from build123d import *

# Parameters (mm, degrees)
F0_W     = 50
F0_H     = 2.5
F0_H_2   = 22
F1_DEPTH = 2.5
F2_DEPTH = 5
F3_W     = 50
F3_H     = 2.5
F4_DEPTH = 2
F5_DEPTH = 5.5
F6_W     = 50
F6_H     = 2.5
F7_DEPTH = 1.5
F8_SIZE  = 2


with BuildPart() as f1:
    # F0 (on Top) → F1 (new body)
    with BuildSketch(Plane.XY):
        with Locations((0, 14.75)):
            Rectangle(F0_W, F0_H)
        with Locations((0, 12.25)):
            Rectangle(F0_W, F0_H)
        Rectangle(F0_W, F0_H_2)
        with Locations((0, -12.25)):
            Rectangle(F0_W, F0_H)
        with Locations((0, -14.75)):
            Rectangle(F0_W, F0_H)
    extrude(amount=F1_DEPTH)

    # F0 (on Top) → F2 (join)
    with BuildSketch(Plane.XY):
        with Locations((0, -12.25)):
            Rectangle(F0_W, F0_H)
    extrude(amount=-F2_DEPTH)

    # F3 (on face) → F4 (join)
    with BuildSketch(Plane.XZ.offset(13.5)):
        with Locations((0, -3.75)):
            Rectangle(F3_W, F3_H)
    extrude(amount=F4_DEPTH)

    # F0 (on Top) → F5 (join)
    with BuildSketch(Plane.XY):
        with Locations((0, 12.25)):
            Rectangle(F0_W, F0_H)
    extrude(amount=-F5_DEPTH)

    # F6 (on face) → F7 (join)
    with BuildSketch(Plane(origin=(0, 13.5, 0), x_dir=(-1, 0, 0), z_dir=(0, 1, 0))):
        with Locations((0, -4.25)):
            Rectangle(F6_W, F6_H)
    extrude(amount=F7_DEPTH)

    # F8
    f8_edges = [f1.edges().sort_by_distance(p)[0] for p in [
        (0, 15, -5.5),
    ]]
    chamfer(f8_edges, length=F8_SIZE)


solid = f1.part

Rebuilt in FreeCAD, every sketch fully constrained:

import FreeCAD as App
import Part
import Sketcher

V = App.Vector
Q = App.Units.Quantity


def edges_at(feature, points):
    """Names of the edges that pass closest to the given points."""
    edges = feature.Shape.Edges
    near = lambda p: min(range(len(edges)), key=lambda i: edges[i].distToShape(Part.Vertex(*p))[0])
    return sorted({f"Edge{near(p) + 1}" for p in points})


def add_polygon(sketch, points):
    """Adds a closed chain of lines whose ends are joined by coincident constraints."""
    first, n = sketch.GeometryCount, len(points)
    for a, b in zip(points, points[1:] + points[:1]):
        sketch.addGeometry(Part.LineSegment(App.Vector(*a, 0), App.Vector(*b, 0)), False)
    for i in range(n):
        sketch.addConstraint(Sketcher.Constraint("Coincident", first + i, 2, first + (i + 1) % n, 1))

doc = App.newDocument("Part")
body = doc.addObject("PartDesign::Body", "Body")

# Sketch on XY plane
sketch1 = body.newObject("Sketcher::SketchObject", "Sketch")
sketch1.AttachmentSupport = (doc.getObject("XY_Plane"), [""])
sketch1.MapMode = "FlatFace"
add_polygon(sketch1, [(-25, 16), (-25, -16), (25, -16), (25, 16)])  # lines 0-3
sketch1.addConstraint([
    Sketcher.Constraint("Vertical", 0),
    Sketcher.Constraint("Horizontal", 1),
    Sketcher.Constraint("Vertical", 2),
    Sketcher.Constraint("Horizontal", 3),
    Sketcher.Constraint("Symmetric", 0, 2, 2, 2, -1, 1),
    Sketcher.Constraint("DistanceX", 1, 1, 1, 2, Q("50 mm")),
    Sketcher.Constraint("DistanceY", 0, 2, 0, 1, Q("32 mm")),
])
pad1 = body.newObject("PartDesign::Pad", "Pad")
pad1.Profile = sketch1
pad1.Length = 2.5

# Sketch on XY plane
sketch2 = body.newObject("Sketcher::SketchObject", "Sketch001")
sketch2.AttachmentSupport = (doc.getObject("XY_Plane"), [""])
sketch2.MapMode = "FlatFace"
add_polygon(sketch2, [(-25, -11), (-25, -13.5), (25, -13.5), (25, -11)])  # lines 0-3
sketch2.addConstraint([
    Sketcher.Constraint("Vertical", 0),
    Sketcher.Constraint("Horizontal", 1),
    Sketcher.Constraint("Vertical", 2),
    Sketcher.Constraint("Horizontal", 3),
    Sketcher.Constraint("DistanceX", 1, 1, 1, 2, Q("50 mm")),
    Sketcher.Constraint("DistanceY", 0, 2, 0, 1, Q("2.5 mm")),
    Sketcher.Constraint("DistanceX", 0, 2, -1, 1, Q("25 mm")),
    Sketcher.Constraint("DistanceY", 2, 2, -1, 1, Q("11 mm")),
])
pad2 = body.newObject("PartDesign::Pad", "Pad001")
pad2.Profile = sketch2
pad2.Length = 5
pad2.Reversed = True

# Sketch on XZ plane
sketch3 = body.newObject("Sketcher::SketchObject", "Sketch002")
sketch3.AttachmentSupport = (doc.getObject("XZ_Plane"), [""])
sketch3.MapMode = "FlatFace"
sketch3.AttachmentOffset = App.Placement(V(0, 0, 13.5), App.Rotation())
add_polygon(sketch3, [(-25, -2.5), (-25, -5), (25, -5), (25, -2.5)])  # lines 0-3
sketch3.addConstraint([
    Sketcher.Constraint("Vertical", 0),
    Sketcher.Constraint("Horizontal", 1),
    Sketcher.Constraint("Vertical", 2),
    Sketcher.Constraint("Horizontal", 3),
    Sketcher.Constraint("DistanceX", 1, 1, 1, 2, Q("50 mm")),
    Sketcher.Constraint("DistanceY", 0, 2, 0, 1, Q("2.5 mm")),
    Sketcher.Constraint("DistanceX", 0, 2, -1, 1, Q("25 mm")),
    Sketcher.Constraint("DistanceY", 0, 2, -1, 1, Q("5 mm")),
])
pad3 = body.newObject("PartDesign::Pad", "Pad002")
pad3.Profile = sketch3
pad3.Length = 2

# Sketch on XY plane
sketch4 = body.newObject("Sketcher::SketchObject", "Sketch003")
sketch4.AttachmentSupport = (doc.getObject("XY_Plane"), [""])
sketch4.MapMode = "FlatFace"
add_polygon(sketch4, [(-25, 13.5), (-25, 11), (25, 11), (25, 13.5)])  # lines 0-3
sketch4.addConstraint([
    Sketcher.Constraint("Vertical", 0),
    Sketcher.Constraint("Horizontal", 1),
    Sketcher.Constraint("Vertical", 2),
    Sketcher.Constraint("Horizontal", 3),
    Sketcher.Constraint("DistanceX", 1, 1, 1, 2, Q("50 mm")),
    Sketcher.Constraint("DistanceY", 0, 2, 0, 1, Q("2.5 mm")),
    Sketcher.Constraint("DistanceX", 0, 2, -1, 1, Q("25 mm")),
    Sketcher.Constraint("DistanceY", -1, 1, 0, 2, Q("11 mm")),
])
pad4 = body.newObject("PartDesign::Pad", "Pad003")
pad4.Profile = sketch4
pad4.Length = 5.5
pad4.Reversed = True

# Sketch on XZ plane
sketch5 = body.newObject("Sketcher::SketchObject", "Sketch004")
sketch5.AttachmentSupport = (doc.getObject("XZ_Plane"), [""])
sketch5.MapMode = "FlatFace"
sketch5.AttachmentOffset = App.Placement(V(0, 0, -13.5), App.Rotation())
add_polygon(sketch5, [(25, -3), (25, -5.5), (-25, -5.5), (-25, -3)])  # lines 0-3
sketch5.addConstraint([
    Sketcher.Constraint("Vertical", 0),
    Sketcher.Constraint("Horizontal", 1),
    Sketcher.Constraint("Vertical", 2),
    Sketcher.Constraint("Horizontal", 3),
    Sketcher.Constraint("DistanceX", 1, 2, 1, 1, Q("50 mm")),
    Sketcher.Constraint("DistanceY", 0, 2, 0, 1, Q("2.5 mm")),
    Sketcher.Constraint("DistanceX", -1, 1, 0, 2, Q("25 mm")),
    Sketcher.Constraint("DistanceY", 2, 2, -1, 1, Q("3 mm")),
])
pad5 = body.newObject("PartDesign::Pad", "Pad004")
pad5.Profile = sketch5
pad5.Length = 1.5
pad5.Reversed = True
doc.recompute()

chamfer = body.newObject("PartDesign::Chamfer", "Chamfer")
chamfer.Base = (pad5, edges_at(pad5, [(0, 15, -5.5)]))
chamfer.Size = 2

doc.recompute()
